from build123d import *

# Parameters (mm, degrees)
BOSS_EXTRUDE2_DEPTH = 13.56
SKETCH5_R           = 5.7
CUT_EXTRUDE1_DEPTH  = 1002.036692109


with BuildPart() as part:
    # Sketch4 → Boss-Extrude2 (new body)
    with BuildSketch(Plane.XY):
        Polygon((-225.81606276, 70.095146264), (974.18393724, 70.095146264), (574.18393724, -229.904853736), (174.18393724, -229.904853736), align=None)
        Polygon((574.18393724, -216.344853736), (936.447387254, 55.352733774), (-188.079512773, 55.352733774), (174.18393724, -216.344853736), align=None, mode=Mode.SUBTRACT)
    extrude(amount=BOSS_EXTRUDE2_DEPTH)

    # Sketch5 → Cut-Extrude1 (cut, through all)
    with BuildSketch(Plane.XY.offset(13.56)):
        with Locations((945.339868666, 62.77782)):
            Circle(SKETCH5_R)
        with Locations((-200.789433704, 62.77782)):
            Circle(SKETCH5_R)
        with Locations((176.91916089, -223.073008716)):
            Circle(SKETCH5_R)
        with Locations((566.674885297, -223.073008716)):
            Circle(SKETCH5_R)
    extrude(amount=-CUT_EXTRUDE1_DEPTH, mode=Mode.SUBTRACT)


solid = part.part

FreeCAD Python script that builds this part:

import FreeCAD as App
import Part
import Sketcher
from FreeCAD import Vector
Q = App.Units.Quantity


def add_polygon(sketch, points):
    """Adds a closed chain of lines whose ends are joined by coincident constraints."""
    first, n = sketch.GeometryCount, len(points)
    for a, b in zip(points, points[1:] + points[:1]):
        sketch.addGeometry(Part.LineSegment(App.Vector(*a, 0), App.Vector(*b, 0)), False)
    for i in range(n):
        sketch.addConstraint(Sketcher.Constraint("Coincident", first + i, 2, first + (i + 1) % n, 1))

doc = App.newDocument("Part")
params = doc.addObject("Spreadsheet::Sheet", "Params")
for row, (alias, value) in enumerate([
    ("sketch1_width", "1200 mm"),
    ("sketch1_width2", "400 mm"),
    ("sketch1_length", "500 mm"),
    ("pad1_length", "13.56 mm"),
    ("sketch2_diameter", "11.4 mm"),
], start=1):
    params.set(f"A{row}", alias)
    params.set(f"B{row}", "=" + value)
    params.setAlias(f"B{row}", alias)

body = doc.addObject("PartDesign::Body", "Body")

# Sketch on XY plane
sketch1 = body.newObject("Sketcher::SketchObject", "Sketch")
sketch1.AttachmentSupport = (doc.getObject("XY_Plane"), [""])
sketch1.MapMode = "FlatFace"
add_polygon(sketch1, [(974, 70), (-226, 70), (174, -230), (574, -230)])  # lines 0-3
add_polygon(sketch1, [(574, -216), (174, -216), (-188, 55), (936, 55)])  # lines 4-7
sketch1.addConstraint([
    Sketcher.Constraint("Horizontal", 0),
    Sketcher.Constraint("Horizontal", 2),
    Sketcher.Constraint("Horizontal", 4),
    Sketcher.Constraint("Horizontal", 6),
    Sketcher.Constraint("Parallel", 1, 5),
    Sketcher.Constraint("Parallel", 3, 7),
    Sketcher.Constraint("Vertical", 1, 2, 4, 2),
    Sketcher.Constraint("Vertical", 2, 2, 7, 2),
    Sketcher.Constraint("Equal", 1, 3),
    Sketcher.Constraint("DistanceX", 0, 2, 0, 1, Q("1200 mm")),
    Sketcher.Constraint("DistanceX", 2, 1, 2, 2, Q("400 mm")),
    Sketcher.Constraint("Distance", 1, Q("500 mm")),
    Sketcher.Constraint("DistanceY", 1, 2, 4, 2, Q("13.56 mm")),
    Sketcher.Constraint("DistanceX", 6, 1, 6, 2, Q("1124.5269 mm")),
    Sketcher.Constraint("DistanceX", 0, 2, -1, 1, Q("225.816063 mm")),
    Sketcher.Constraint("DistanceY", -1, 1, 0, 2, Q("70.095146 mm")),
])
sketch1.setExpression("Constraints[17]", "Params.sketch1_width")
sketch1.setExpression("Constraints[18]", "Params.sketch1_width2")
sketch1.setExpression("Constraints[19]", "Params.sketch1_length")
pad1 = body.newObject("PartDesign::Pad", "Pad")
pad1.Profile = sketch1
pad1.setExpression("Length", "Params.pad1_length")

# Sketch on XY plane
sketch2 = body.newObject("Sketcher::SketchObject", "Sketch001")
sketch2.AttachmentSupport = (doc.getObject("XY_Plane"), [""])
sketch2.MapMode = "FlatFace"
sketch2.AttachmentOffset = App.Placement(Vector(0, 0, 13.56), App.Rotation())
sketch2.addGeometry([
    Part.Circle(Vector(945, 63, 0), Vector(0, 0, 1), 6),
    Part.Circle(Vector(-201, 63, 0), Vector(0, 0, 1), 6),
    Part.Circle(Vector(177, -223, 0), Vector(0, 0, 1), 6),
    Part.Circle(Vector(567, -223, 0), Vector(0, 0, 1), 6),
], False)
sketch2.addConstraint([
    Sketcher.Constraint("Equal", 0, 1),
    Sketcher.Constraint("Equal", 1, 2),
    Sketcher.Constraint("Equal", 2, 3),
    Sketcher.Constraint("Horizontal", 0, 3, 1, 3),
    Sketcher.Constraint("Horizontal", 2, 3, 3, 3),
    Sketcher.Constraint("Diameter", 0, Q("11.4 mm")),
    Sketcher.Constraint("DistanceX", -1, 1, 0, 3, Q("945.339869 mm")),
    Sketcher.Constraint("DistanceY", -1, 1, 0, 3, Q("62.77782 mm")),
    Sketcher.Constraint("DistanceX", -1, 1, 2, 3, Q("176.919161 mm")),
    Sketcher.Constraint("DistanceY", 2, 3, -1, 1, Q("223.073009 mm")),
    Sketcher.Constraint("DistanceX", 1, 3, 3, 3, Q("767.464319 mm")),
    Sketcher.Constraint("DistanceX", 1, 3, -1, 1, Q("200.789434 mm")),
])
sketch2.setExpression("Constraints[5]", "Params.sketch2_diameter")
pocket1 = body.newObject("PartDesign::Pocket", "Pocket")
pocket1.Profile = sketch2
pocket1.Type = "ThroughAll"

doc.recompute()
